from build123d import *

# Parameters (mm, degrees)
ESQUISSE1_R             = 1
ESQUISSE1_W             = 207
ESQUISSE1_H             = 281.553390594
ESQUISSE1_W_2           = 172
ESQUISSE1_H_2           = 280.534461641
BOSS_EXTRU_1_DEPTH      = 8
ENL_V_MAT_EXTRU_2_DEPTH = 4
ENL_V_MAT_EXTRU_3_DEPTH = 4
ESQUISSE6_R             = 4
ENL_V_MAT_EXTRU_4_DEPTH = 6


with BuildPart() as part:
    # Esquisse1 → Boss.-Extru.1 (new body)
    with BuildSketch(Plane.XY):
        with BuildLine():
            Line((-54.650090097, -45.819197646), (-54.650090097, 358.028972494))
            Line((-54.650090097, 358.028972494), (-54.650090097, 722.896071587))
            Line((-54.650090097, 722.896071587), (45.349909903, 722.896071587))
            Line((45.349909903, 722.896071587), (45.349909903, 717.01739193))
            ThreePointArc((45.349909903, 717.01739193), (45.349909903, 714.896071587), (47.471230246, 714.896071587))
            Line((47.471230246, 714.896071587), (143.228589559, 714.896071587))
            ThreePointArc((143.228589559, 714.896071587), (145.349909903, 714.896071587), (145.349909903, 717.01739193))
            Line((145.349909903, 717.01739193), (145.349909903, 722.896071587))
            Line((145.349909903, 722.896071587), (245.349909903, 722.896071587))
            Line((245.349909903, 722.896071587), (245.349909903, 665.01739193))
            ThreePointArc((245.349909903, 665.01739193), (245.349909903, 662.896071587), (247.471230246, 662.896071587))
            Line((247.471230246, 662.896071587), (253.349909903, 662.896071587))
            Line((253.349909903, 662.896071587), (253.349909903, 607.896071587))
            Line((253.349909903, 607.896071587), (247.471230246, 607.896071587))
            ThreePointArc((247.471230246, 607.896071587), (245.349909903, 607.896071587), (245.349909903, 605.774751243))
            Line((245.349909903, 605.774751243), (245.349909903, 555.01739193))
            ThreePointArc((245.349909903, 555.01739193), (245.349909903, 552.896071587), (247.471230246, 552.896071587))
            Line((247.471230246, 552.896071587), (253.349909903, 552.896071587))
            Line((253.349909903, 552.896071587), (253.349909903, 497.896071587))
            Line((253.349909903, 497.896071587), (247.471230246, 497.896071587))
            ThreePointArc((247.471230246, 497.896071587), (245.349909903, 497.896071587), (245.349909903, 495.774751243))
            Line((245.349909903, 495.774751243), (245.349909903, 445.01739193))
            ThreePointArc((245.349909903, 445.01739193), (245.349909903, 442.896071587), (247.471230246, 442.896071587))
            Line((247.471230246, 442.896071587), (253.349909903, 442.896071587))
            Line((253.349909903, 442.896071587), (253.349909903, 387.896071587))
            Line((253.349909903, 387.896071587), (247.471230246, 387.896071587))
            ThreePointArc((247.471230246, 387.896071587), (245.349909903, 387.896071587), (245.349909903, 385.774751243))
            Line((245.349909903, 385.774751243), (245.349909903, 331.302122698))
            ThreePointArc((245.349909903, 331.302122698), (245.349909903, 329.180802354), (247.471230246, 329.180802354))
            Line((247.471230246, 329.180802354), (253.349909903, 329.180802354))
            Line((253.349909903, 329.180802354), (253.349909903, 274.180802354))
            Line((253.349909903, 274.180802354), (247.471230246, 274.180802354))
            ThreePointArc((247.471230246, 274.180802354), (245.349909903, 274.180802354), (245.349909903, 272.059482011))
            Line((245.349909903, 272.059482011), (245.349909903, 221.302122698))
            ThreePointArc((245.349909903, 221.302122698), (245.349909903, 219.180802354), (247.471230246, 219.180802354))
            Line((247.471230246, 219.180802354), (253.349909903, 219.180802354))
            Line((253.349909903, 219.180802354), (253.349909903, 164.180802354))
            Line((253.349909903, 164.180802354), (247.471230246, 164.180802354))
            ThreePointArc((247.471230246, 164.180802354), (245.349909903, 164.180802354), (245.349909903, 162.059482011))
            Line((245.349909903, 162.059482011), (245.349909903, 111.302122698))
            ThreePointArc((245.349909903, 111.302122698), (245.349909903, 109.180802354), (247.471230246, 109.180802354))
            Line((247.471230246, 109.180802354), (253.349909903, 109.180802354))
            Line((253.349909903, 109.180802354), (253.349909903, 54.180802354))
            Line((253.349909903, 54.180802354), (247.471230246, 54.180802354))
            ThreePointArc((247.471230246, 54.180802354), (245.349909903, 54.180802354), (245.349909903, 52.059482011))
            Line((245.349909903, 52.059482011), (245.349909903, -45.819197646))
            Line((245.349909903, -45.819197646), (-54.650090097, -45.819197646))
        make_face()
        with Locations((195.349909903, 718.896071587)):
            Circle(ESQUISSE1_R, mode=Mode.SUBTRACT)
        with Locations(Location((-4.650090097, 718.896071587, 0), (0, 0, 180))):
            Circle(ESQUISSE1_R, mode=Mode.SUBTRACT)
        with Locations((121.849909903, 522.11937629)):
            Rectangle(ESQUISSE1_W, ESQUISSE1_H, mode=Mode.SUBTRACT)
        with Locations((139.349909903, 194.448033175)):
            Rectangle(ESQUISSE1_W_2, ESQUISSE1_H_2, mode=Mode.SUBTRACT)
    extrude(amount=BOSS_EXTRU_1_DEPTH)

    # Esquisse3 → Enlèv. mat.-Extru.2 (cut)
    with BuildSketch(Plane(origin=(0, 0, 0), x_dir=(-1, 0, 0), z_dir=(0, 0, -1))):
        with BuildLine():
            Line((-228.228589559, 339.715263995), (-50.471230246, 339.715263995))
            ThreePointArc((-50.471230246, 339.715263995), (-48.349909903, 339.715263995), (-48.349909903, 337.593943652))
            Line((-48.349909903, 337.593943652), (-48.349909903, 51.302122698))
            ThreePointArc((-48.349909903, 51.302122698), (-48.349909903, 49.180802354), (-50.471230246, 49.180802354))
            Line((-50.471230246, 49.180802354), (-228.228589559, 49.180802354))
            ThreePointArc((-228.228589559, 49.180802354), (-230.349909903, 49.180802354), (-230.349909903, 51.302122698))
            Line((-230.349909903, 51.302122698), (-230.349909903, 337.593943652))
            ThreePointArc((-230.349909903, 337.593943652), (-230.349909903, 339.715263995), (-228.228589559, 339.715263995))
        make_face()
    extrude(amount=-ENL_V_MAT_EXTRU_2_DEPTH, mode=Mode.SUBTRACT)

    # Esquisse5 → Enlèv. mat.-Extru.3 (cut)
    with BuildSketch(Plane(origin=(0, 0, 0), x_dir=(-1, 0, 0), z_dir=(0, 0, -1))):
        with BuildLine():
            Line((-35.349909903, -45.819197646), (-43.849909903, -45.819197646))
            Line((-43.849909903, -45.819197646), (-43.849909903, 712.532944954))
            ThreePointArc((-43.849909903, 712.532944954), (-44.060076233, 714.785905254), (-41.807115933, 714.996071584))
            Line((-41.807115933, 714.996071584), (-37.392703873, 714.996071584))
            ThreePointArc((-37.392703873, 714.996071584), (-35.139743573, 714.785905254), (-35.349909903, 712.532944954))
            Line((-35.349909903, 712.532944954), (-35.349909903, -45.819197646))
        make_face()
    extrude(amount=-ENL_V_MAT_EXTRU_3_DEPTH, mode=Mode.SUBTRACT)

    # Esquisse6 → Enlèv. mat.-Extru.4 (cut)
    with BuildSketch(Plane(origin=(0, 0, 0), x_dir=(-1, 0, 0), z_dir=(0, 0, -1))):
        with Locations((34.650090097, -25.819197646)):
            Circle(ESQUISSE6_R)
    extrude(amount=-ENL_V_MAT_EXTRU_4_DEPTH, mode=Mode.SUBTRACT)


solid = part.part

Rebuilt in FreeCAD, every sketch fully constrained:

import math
import FreeCAD as App
import Part
import Sketcher
Q = App.Units.Quantity


def add_polygon(sketch, points):
    """Adds a closed chain of lines whose ends are joined by coincident constraints."""
    first, n = sketch.GeometryCount, len(points)
    for a, b in zip(points, points[1:] + points[:1]):
        sketch.addGeometry(Part.LineSegment(App.Vector(*a, 0), App.Vector(*b, 0)), False)
    for i in range(n):
        sketch.addConstraint(Sketcher.Constraint("Coincident", first + i, 2, first + (i + 1) % n, 1))

doc = App.newDocument("Part")
body = doc.addObject("PartDesign::Body", "Body")

# Sketch on XY plane
sketch1 = body.newObject("Sketcher::SketchObject", "Sketch")
sketch1.AttachmentSupport = (doc.getObject("XY_Plane"), [""])
sketch1.MapMode = "FlatFace"
sketch1.addGeometry(Part.LineSegment(App.Vector(-54.7, 722.9, 0), App.Vector(-54.7, -45.8, 0)), False)  # 0
sketch1.addGeometry(Part.LineSegment(App.Vector(-54.7, -45.8, 0), App.Vector(245.3, -45.8, 0)), False)  # 1
sketch1.addGeometry(Part.LineSegment(App.Vector(245.3, -45.8, 0), App.Vector(245.3, 52.1, 0)), False)  # 2
sketch1.addGeometry(Part.ArcOfCircle(Part.Circle(App.Vector(246.4, 53.1, 0), App.Vector(0, 0, 1), 1.5), math.radians(45), math.radians(225)), False)  # 3
sketch1.addGeometry(Part.LineSegment(App.Vector(247.5, 54.2, 0), App.Vector(253.3, 54.2, 0)), False)  # 4
sketch1.addGeometry(Part.LineSegment(App.Vector(253.3, 54.2, 0), App.Vector(253.3, 109.2, 0)), False)  # 5
sketch1.addGeometry(Part.LineSegment(App.Vector(253.3, 109.2, 0), App.Vector(247.5, 109.2, 0)), False)  # 6
sketch1.addGeometry(Part.ArcOfCircle(Part.Circle(App.Vector(246.4, 110.2, 0), App.Vector(0, 0, 1), 1.5), math.radians(135), math.radians(315)), False)  # 7
sketch1.addGeometry(Part.LineSegment(App.Vector(245.3, 111.3, 0), App.Vector(245.3, 162.1, 0)), False)  # 8
sketch1.addGeometry(Part.ArcOfCircle(Part.Circle(App.Vector(246.4, 163.1, 0), App.Vector(0, 0, 1), 1.5), math.radians(45), math.radians(225)), False)  # 9
sketch1.addGeometry(Part.LineSegment(App.Vector(247.5, 164.2, 0), App.Vector(253.3, 164.2, 0)), False)  # 10
sketch1.addGeometry(Part.LineSegment(App.Vector(253.3, 164.2, 0), App.Vector(253.3, 219.2, 0)), False)  # 11
sketch1.addGeometry(Part.LineSegment(App.Vector(253.3, 219.2, 0), App.Vector(247.5, 219.2, 0)), False)  # 12
sketch1.addGeometry(Part.ArcOfCircle(Part.Circle(App.Vector(246.4, 220.2, 0), App.Vector(0, 0, 1), 1.5), math.radians(135), math.radians(315)), False)  # 13
sketch1.addGeometry(Part.LineSegment(App.Vector(245.3, 221.3, 0), App.Vector(245.3, 272.1, 0)), False)  # 14
sketch1.addGeometry(Part.ArcOfCircle(Part.Circle(App.Vector(246.4, 273.1, 0), App.Vector(0, 0, 1), 1.5), math.radians(45), math.radians(225)), False)  # 15
sketch1.addGeometry(Part.LineSegment(App.Vector(247.5, 274.2, 0), App.Vector(253.3, 274.2, 0)), False)  # 16
sketch1.addGeometry(Part.LineSegment(App.Vector(253.3, 274.2, 0), App.Vector(253.3, 329.2, 0)), False)  # 17
sketch1.addGeometry(Part.LineSegment(App.Vector(253.3, 329.2, 0), App.Vector(247.5, 329.2, 0)), False)  # 18
sketch1.addGeometry(Part.ArcOfCircle(Part.Circle(App.Vector(246.4, 330.2, 0), App.Vector(0, 0, 1), 1.5), math.radians(135), math.radians(315)), False)  # 19
sketch1.addGeometry(Part.LineSegment(App.Vector(245.3, 331.3, 0), App.Vector(245.3, 385.8, 0)), False)  # 20
sketch1.addGeometry(Part.ArcOfCircle(Part.Circle(App.Vector(246.4, 386.8, 0), App.Vector(0, 0, 1), 1.5), math.radians(45), math.radians(225)), False)  # 21
sketch1.addGeometry(Part.LineSegment(App.Vector(247.5, 387.9, 0), App.Vector(253.3, 387.9, 0)), False)  # 22
sketch1.addGeometry(Part.LineSegment(App.Vector(253.3, 387.9, 0), App.Vector(253.3, 442.9, 0)), False)  # 23
sketch1.addGeometry(Part.LineSegment(App.Vector(253.3, 442.9, 0), App.Vector(247.5, 442.9, 0)), False)  # 24
sketch1.addGeometry(Part.ArcOfCircle(Part.Circle(App.Vector(246.4, 444, 0), App.Vector(0, 0, 1), 1.5), math.radians(135), math.radians(315)), False)  # 25
sketch1.addGeometry(Part.LineSegment(App.Vector(245.3, 445, 0), App.Vector(245.3, 495.8, 0)), False)  # 26
sketch1.addGeometry(Part.ArcOfCircle(Part.Circle(App.Vector(246.4, 496.8, 0), App.Vector(0, 0, 1), 1.5), math.radians(45), math.radians(225)), False)  # 27
sketch1.addGeometry(Part.LineSegment(App.Vector(247.5, 497.9, 0), App.Vector(253.3, 497.9, 0)), False)  # 28
sketch1.addGeometry(Part.LineSegment(App.Vector(253.3, 497.9, 0), App.Vector(253.3, 552.9, 0)), False)  # 29
sketch1.addGeometry(Part.LineSegment(App.Vector(253.3, 552.9, 0), App.Vector(247.5, 552.9, 0)), False)  # 30
sketch1.addGeometry(Part.ArcOfCircle(Part.Circle(App.Vector(246.4, 554, 0), App.Vector(0, 0, 1), 1.5), math.radians(135), math.radians(315)), False)  # 31
sketch1.addGeometry(Part.LineSegment(App.Vector(245.3, 555, 0), App.Vector(245.3, 605.8, 0)), False)  # 32
sketch1.addGeometry(Part.ArcOfCircle(Part.Circle(App.Vector(246.4, 606.8, 0), App.Vector(0, 0, 1), 1.5), math.radians(45), math.radians(225)), False)  # 33
sketch1.addGeometry(Part.LineSegment(App.Vector(247.5, 607.9, 0), App.Vector(253.3, 607.9, 0)), False)  # 34
sketch1.addGeometry(Part.LineSegment(App.Vector(253.3, 607.9, 0), App.Vector(253.3, 662.9, 0)), False)  # 35
sketch1.addGeometry(Part.LineSegment(App.Vector(253.3, 662.9, 0), App.Vector(247.5, 662.9, 0)), False)  # 36
sketch1.addGeometry(Part.ArcOfCircle(Part.Circle(App.Vector(246.4, 664, 0), App.Vector(0, 0, 1), 1.5), math.radians(135), math.radians(315)), False)  # 37
sketch1.addGeometry(Part.LineSegment(App.Vector(245.3, 665, 0), App.Vector(245.3, 722.9, 0)), False)  # 38
sketch1.addGeometry(Part.LineSegment(App.Vector(245.3, 722.9, 0), App.Vector(145.3, 722.9, 0)), False)  # 39
sketch1.addGeometry(Part.LineSegment(App.Vector(145.3, 722.9, 0), App.Vector(145.3, 717, 0)), False)  # 40
sketch1.addGeometry(Part.ArcOfCircle(Part.Circle(App.Vector(144.3, 716, 0), App.Vector(0, 0, 1), 1.5), math.radians(-135), math.radians(45)), False)  # 41
sketch1.addGeometry(Part.LineSegment(App.Vector(143.2, 714.9, 0), App.Vector(47.5, 714.9, 0)), False)  # 42
sketch1.addGeometry(Part.ArcOfCircle(Part.Circle(App.Vector(46.4, 716, 0), App.Vector(0, 0, 1), 1.5), math.radians(135), math.radians(315)), False)  # 43
sketch1.addGeometry(Part.LineSegment(App.Vector(45.3, 717, 0), App.Vector(45.3, 722.9, 0)), False)  # 44
sketch1.addGeometry(Part.LineSegment(App.Vector(45.3, 722.9, 0), App.Vector(-54.7, 722.9, 0)), False)  # 45
add_polygon(sketch1, [(53.3, 54.2), (53.3, 334.7), (225.3, 334.7), (225.3, 54.2)])  # lines 46-49
add_polygon(sketch1, [(18.3, 381.3), (18.3, 662.9), (225.3, 662.9), (225.3, 381.3)])  # lines 50-53
sketch1.addGeometry(Part.Circle(App.Vector(195.3, 718.9, 0), App.Vector(0, 0, 1), 1), False)  # 54
sketch1.addGeometry(Part.Circle(App.Vector(-4.7, 718.9, 0), App.Vector(0, 0, 1), 1), False)  # 55
sketch1.addConstraint([
    Sketcher.Constraint("Coincident", 0, 2, 1, 1),
    Sketcher.Constraint("Coincident", 1, 2, 2, 1),
    Sketcher.Constraint("Coincident", 2, 2, 3, 2),
    Sketcher.Constraint("Coincident", 3, 1, 4, 1),
    Sketcher.Constraint("Coincident", 4, 2, 5, 1),
    Sketcher.Constraint("Coincident", 5, 2, 6, 1),
    Sketcher.Constraint("Coincident", 6, 2, 7, 2),
    Sketcher.Constraint("Coincident", 7, 1, 8, 1),
    Sketcher.Constraint("Coincident", 8, 2, 9, 2),
    Sketcher.Constraint("Coincident", 9, 1, 10, 1),
    Sketcher.Constraint("Coincident", 10, 2, 11, 1),
    Sketcher.Constraint("Coincident", 11, 2, 12, 1),
    Sketcher.Constraint("Coincident", 12, 2, 13, 2),
    Sketcher.Constraint("Coincident", 13, 1, 14, 1),
    Sketcher.Constraint("Coincident", 14, 2, 15, 2),
    Sketcher.Constraint("Coincident", 15, 1, 16, 1),
    Sketcher.Constraint("Coincident", 16, 2, 17, 1),
    Sketcher.Constraint("Coincident", 17, 2, 18, 1),
    Sketcher.Constraint("Coincident", 18, 2, 19, 2),
    Sketcher.Constraint("Coincident", 19, 1, 20, 1),
    Sketcher.Constraint("Coincident", 20, 2, 21, 2),
    Sketcher.Constraint("Coincident", 21, 1, 22, 1),
    Sketcher.Constraint("Coincident", 22, 2, 23, 1),
    Sketcher.Constraint("Coincident", 23, 2, 24, 1),
    Sketcher.Constraint("Coincident", 24, 2, 25, 2),
    Sketcher.Constraint("Coincident", 25, 1, 26, 1),
    Sketcher.Constraint("Coincident", 26, 2, 27, 2),
    Sketcher.Constraint("Coincident", 27, 1, 28, 1),
    Sketcher.Constraint("Coincident", 28, 2, 29, 1),
    Sketcher.Constraint("Coincident", 29, 2, 30, 1),
    Sketcher.Constraint("Coincident", 30, 2, 31, 2),
    Sketcher.Constraint("Coincident", 31, 1, 32, 1),
    Sketcher.Constraint("Coincident", 32, 2, 33, 2),
    Sketcher.Constraint("Coincident", 33, 1, 34, 1),
    Sketcher.Constraint("Coincident", 34, 2, 35, 1),
    Sketcher.Constraint("Coincident", 35, 2, 36, 1),
    Sketcher.Constraint("Coincident", 36, 2, 37, 2),
    Sketcher.Constraint("Coincident", 37, 1, 38, 1),
    Sketcher.Constraint("Coincident", 38, 2, 39, 1),
    Sketcher.Constraint("Coincident", 39, 2, 40, 1),
    Sketcher.Constraint("Coincident", 40, 2, 41, 2),
    Sketcher.Constraint("Coincident", 41, 1, 42, 1),
    Sketcher.Constraint("Coincident", 42, 2, 43, 2),
    Sketcher.Constraint("Coincident", 43, 1, 44, 1),
    Sketcher.Constraint("Coincident", 44, 2, 45, 1),
    Sketcher.Constraint("Coincident", 45, 2, 0, 1),
    Sketcher.Constraint("Vertical", 0),
    Sketcher.Constraint("Horizontal", 1),
    Sketcher.Constraint("Vertical", 2),
    Sketcher.Constraint("Horizontal", 4),
    Sketcher.Constraint("Vertical", 5),
    Sketcher.Constraint("Horizontal", 6),
    Sketcher.Constraint("Vertical", 8),
    Sketcher.Constraint("Horizontal", 10),
    Sketcher.Constraint("Vertical", 11),
    Sketcher.Constraint("Horizontal", 12),
    Sketcher.Constraint("Vertical", 14),
    Sketcher.Constraint("Horizontal", 16),
    Sketcher.Constraint("Vertical", 17),
    Sketcher.Constraint("Horizontal", 18),
    Sketcher.Constraint("Vertical", 20),
    Sketcher.Constraint("Horizontal", 22),
    Sketcher.Constraint("Vertical", 23),
    Sketcher.Constraint("Horizontal", 24),
    Sketcher.Constraint("Vertical", 26),
    Sketcher.Constraint("Horizontal", 28),
    Sketcher.Constraint("Vertical", 29),
    Sketcher.Constraint("Horizontal", 30),
    Sketcher.Constraint("Vertical", 32),
    Sketcher.Constraint("Horizontal", 34),
    Sketcher.Constraint("Vertical", 35),
    Sketcher.Constraint("Horizontal", 36),
    Sketcher.Constraint("Vertical", 38),
    Sketcher.Constraint("Horizontal", 39),
    Sketcher.Constraint("Vertical", 40),
    Sketcher.Constraint("Horizontal", 42),
    Sketcher.Constraint("Vertical", 44),
    Sketcher.Constraint("Horizontal", 45),
    Sketcher.Constraint("Vertical", 46),
    Sketcher.Constraint("Horizontal", 47),
    Sketcher.Constraint("Vertical", 48),
    Sketcher.Constraint("Horizontal", 49),
    Sketcher.Constraint("Vertical", 50),
    Sketcher.Constraint("Horizontal", 51),
    Sketcher.Constraint("Vertical", 52),
    Sketcher.Constraint("Horizontal", 53),
    Sketcher.Constraint("Equal", 3, 7),
    Sketcher.Constraint("Equal", 7, 9),
    Sketcher.Constraint("Equal", 9, 13),
    Sketcher.Constraint("Equal", 13, 15),
    Sketcher.Constraint("Equal", 15, 19),
    Sketcher.Constraint("Equal", 19, 21),
    Sketcher.Constraint("Equal", 21, 25),
    Sketcher.Constraint("Equal", 25, 27),
    Sketcher.Constraint("Equal", 27, 31),
    Sketcher.Constraint("Equal", 31, 33),
    Sketcher.Constraint("Equal", 33, 37),
    Sketcher.Constraint("Equal", 37, 41),
    Sketcher.Constraint("Equal", 41, 43),
    Sketcher.Constraint("Equal", 54, 55),
    Sketcher.Constraint("Horizontal", 41, 3, 43, 3),
    Sketcher.Constraint("Horizontal", 54, 3, 55, 3),
    Sketcher.Constraint("Horizontal", 40, 2, 43, 1),
    Sketcher.Constraint("Horizontal", 39, 2, 44, 2),
    Sketcher.Constraint("Horizontal", 4, 2, 48, 2),
    Sketcher.Constraint("Horizontal", 36, 2, 50, 2),
    Sketcher.Constraint("Vertical", 3, 3, 7, 3),
    Sketcher.Constraint("Vertical", 7, 3, 9, 3),
    Sketcher.Constraint("Vertical", 9, 3, 13, 3),
    Sketcher.Constraint("Vertical", 13, 3, 15, 3),
    Sketcher.Constraint("Vertical", 15, 3, 19, 3),
    Sketcher.Constraint("Vertical", 19, 3, 21, 3),
    Sketcher.Constraint("Vertical", 21, 3, 25, 3),
    Sketcher.Constraint("Vertical", 25, 3, 27, 3),
    Sketcher.Constraint("Vertical", 27, 3, 31, 3),
    Sketcher.Constraint("Vertical", 31, 3, 33, 3),
    Sketcher.Constraint("Vertical", 33, 3, 37, 3),
    Sketcher.Constraint("Vertical", 3, 1, 6, 2),
    Sketcher.Constraint("Vertical", 2, 2, 7, 1),
    Sketcher.Constraint("Vertical", 6, 2, 9, 1),
    Sketcher.Constraint("Vertical", 5, 2, 10, 2),
    Sketcher.Constraint("Vertical", 9, 1, 12, 2),
    Sketcher.Constraint("Vertical", 8, 2, 13, 1),
    Sketcher.Constraint("Vertical", 12, 2, 15, 1),
    Sketcher.Constraint("Vertical", 11, 2, 16, 2),
    Sketcher.Constraint("Vertical", 15, 1, 18, 2),
    Sketcher.Constraint("Vertical", 14, 2, 19, 1),
    Sketcher.Constraint("Vertical", 18, 2, 21, 1),
    Sketcher.Constraint("Vertical", 17, 2, 22, 2),
    Sketcher.Constraint("Vertical", 21, 1, 24, 2),
    Sketcher.Constraint("Vertical", 20, 2, 25, 1),
    Sketcher.Constraint("Vertical", 24, 2, 27, 1),
    Sketcher.Constraint("Vertical", 23, 2, 28, 2),
    Sketcher.Constraint("Vertical", 27, 1, 30, 2),
    Sketcher.Constraint("Vertical", 26, 2, 31, 1),
    Sketcher.Constraint("Vertical", 30, 2, 33, 1),
    Sketcher.Constraint("Vertical", 29, 2, 34, 2),
    Sketcher.Constraint("Vertical", 33, 1, 36, 2),
    Sketcher.Constraint("Vertical", 32, 2, 37, 1),
    Sketcher.Constraint("Vertical", 48, 2, 51, 2),
    Sketcher.Constraint("Equal", 39, 45),
    Sketcher.Constraint("Equal", 5, 11),
    Sketcher.Constraint("Equal", 8, 14),
    Sketcher.Constraint("Equal", 11, 17),
    Sketcher.Constraint("Equal", 17, 23),
    Sketcher.Constraint("Equal", 14, 26),
    Sketcher.Constraint("Equal", 23, 29),
    Sketcher.Constraint("Equal", 26, 32),
    Sketcher.Constraint("Equal", 29, 35),
    Sketcher.Constraint("Equal", 36, 40),
    Sketcher.Constraint("Diameter", 54, Q("2 mm")),
    Sketcher.Constraint("Radius", 3, Q("1.5 mm")),
    Sketcher.Constraint("DistanceX", 1, 1, 1, 2, Q("300 mm")),
    Sketcher.Constraint("DistanceX", 39, 2, 39, 1, Q("100 mm")),
    Sketcher.Constraint("DistanceX", 47, 1, 47, 2, Q("172 mm")),
    Sketcher.Constraint("DistanceX", 51, 1, 51, 2, Q("207 mm")),
    Sketcher.Constraint("DistanceY", 5, 1, 5, 2, Q("55 mm")),
    Sketcher.Constraint("DistanceX", 4, 1, 4, 2, Q("5.87868 mm")),
    Sketcher.Constraint("DistanceX", 42, 2, 42, 1, Q("95.757359 mm")),
    Sketcher.Constraint("DistanceY", 0, 2, 0, 1, Q("768.715269 mm")),
    Sketcher.Constraint("DistanceY", 2, 1, 2, 2, Q("97.87868 mm")),
    Sketcher.Constraint("DistanceY", 8, 1, 8, 2, Q("50.757359 mm")),
    Sketcher.Constraint("DistanceY", 20, 1, 20, 2, Q("54.472629 mm")),
    Sketcher.Constraint("DistanceY", 38, 1, 38, 2, Q("57.87868 mm")),
    Sketcher.Constraint("DistanceY", 46, 1, 46, 2, Q("280.534462 mm")),
    Sketcher.Constraint("DistanceY", 50, 1, 50, 2, Q("281.553391 mm")),
    Sketcher.Constraint("DistanceX", -1, 1, 3, 3, Q("246.41057 mm")),
    Sketcher.Constraint("DistanceY", -1, 1, 21, 3, Q("386.835411 mm")),
    Sketcher.Constraint("DistanceY", -1, 1, 25, 3, Q("443.956732 mm")),
    Sketcher.Constraint("DistanceX", -1, 1, 41, 3, Q("144.28925 mm")),
    Sketcher.Constraint("DistanceX", -1, 1, 54, 3, Q("195.34991 mm")),
    Sketcher.Constraint("DistanceY", -1, 1, 54, 3, Q("718.896072 mm")),
    Sketcher.Constraint("DistanceX", 55, 3, -1, 1, Q("4.65009 mm")),
    Sketcher.Constraint("DistanceX", -1, 1, 46, 2, Q("53.34991 mm")),
])
pad1 = body.newObject("PartDesign::Pad", "Pad")
pad1.Profile = sketch1
pad1.Length = 8

# Sketch on XY plane
sketch2 = body.newObject("Sketcher::SketchObject", "Sketch001")
sketch2.AttachmentSupport = (doc.getObject("XY_Plane"), [""])
sketch2.MapMode = "FlatFace"
sketch2.addGeometry([
    Part.LineSegment(App.Vector(50.5, 339.7, 0), App.Vector(228.2, 339.7, 0)),  # 0
    Part.ArcOfCircle(Part.Circle(App.Vector(229.3, 338.7, 0), App.Vector(0, 0, 1), 1.5), math.radians(-45), math.radians(135)),  # 1
    Part.LineSegment(App.Vector(230.3, 337.6, 0), App.Vector(230.3, 51.3, 0)),  # 2
    Part.ArcOfCircle(Part.Circle(App.Vector(229.3, 50.2, 0), App.Vector(0, 0, 1), 1.5), math.radians(-135), math.radians(45)),  # 3
    Part.LineSegment(App.Vector(228.2, 49.2, 0), App.Vector(50.5, 49.2, 0)),  # 4
    Part.ArcOfCircle(Part.Circle(App.Vector(49.4, 50.2, 0), App.Vector(0, 0, 1), 1.5), math.radians(135), math.radians(315)),  # 5
    Part.LineSegment(App.Vector(48.3, 51.3, 0), App.Vector(48.3, 337.6, 0)),  # 6
    Part.ArcOfCircle(Part.Circle(App.Vector(49.4, 338.7, 0), App.Vector(0, 0, 1), 1.5), math.radians(45), math.radians(225)),  # 7
], False)
sketch2.addConstraint([
    Sketcher.Constraint("Coincident", 0, 2, 1, 2),
    Sketcher.Constraint("Coincident", 1, 1, 2, 1),
    Sketcher.Constraint("Coincident", 2, 2, 3, 2),
    Sketcher.Constraint("Coincident", 3, 1, 4, 1),
    Sketcher.Constraint("Coincident", 4, 2, 5, 2),
    Sketcher.Constraint("Coincident", 5, 1, 6, 1),
    Sketcher.Constraint("Coincident", 6, 2, 7, 2),
    Sketcher.Constraint("Coincident", 7, 1, 0, 1),
    Sketcher.Constraint("Horizontal", 0),
    Sketcher.Constraint("Vertical", 2),
    Sketcher.Constraint("Horizontal", 4),
    Sketcher.Constraint("Vertical", 6),
    Sketcher.Constraint("Equal", 1, 3),
    Sketcher.Constraint("Equal", 3, 5),
    Sketcher.Constraint("Equal", 5, 7),
    Sketcher.Constraint("Horizontal", 3, 3, 5, 3),
    Sketcher.Constraint("Horizontal", 1, 3, 7, 3),
    Sketcher.Constraint("Horizontal", 2, 2, 5, 1),
    Sketcher.Constraint("Horizontal", 1, 1, 6, 2),
    Sketcher.Constraint("Vertical", 1, 3, 3, 3),
    Sketcher.Constraint("Vertical", 0, 2, 3, 1),
    Sketcher.Constraint("Radius", 1, Q("1.5 mm")),
    Sketcher.Constraint("DistanceX", 5, 1, 2, 2, Q("182 mm")),
    Sketcher.Constraint("DistanceX", 0, 1, 0, 2, Q("177.757359 mm")),
    Sketcher.Constraint("DistanceY", 2, 2, 2, 1, Q("286.291821 mm")),
    Sketcher.Constraint("DistanceY", 3, 3, 0, 2, Q("289.473801 mm")),
    Sketcher.Constraint("DistanceX", -1, 1, 1, 3, Q("229.28925 mm")),
    Sketcher.Constraint("DistanceY", -1, 1, 1, 3, Q("338.654604 mm")),
])
pocket1 = body.newObject("PartDesign::Pocket", "Pocket")
pocket1.Profile = sketch2
pocket1.Length = 4
pocket1.Reversed = True

# Sketch on XY plane
sketch3 = body.newObject("Sketcher::SketchObject", "Sketch002")
sketch3.AttachmentSupport = (doc.getObject("XY_Plane"), [""])
sketch3.MapMode = "FlatFace"
sketch3.addGeometry([
    Part.LineSegment(App.Vector(43.8, -45.8, 0), App.Vector(35.3, -45.8, 0)),  # 0
    Part.LineSegment(App.Vector(35.3, -45.8, 0), App.Vector(35.3, 712.5, 0)),  # 1
    Part.ArcOfCircle(Part.Circle(App.Vector(36.4, 713.8, 0), App.Vector(0, 0, 1), 1.6), math.radians(50), math.radians(230)),  # 2
    Part.LineSegment(App.Vector(37.4, 715, 0), App.Vector(41.8, 715, 0)),  # 3
    Part.ArcOfCircle(Part.Circle(App.Vector(42.8, 713.8, 0), App.Vector(0, 0, 1), 1.6), math.radians(-50), math.radians(130)),  # 4
    Part.LineSegment(App.Vector(43.8, 712.5, 0), App.Vector(43.8, -45.8, 0)),  # 5
], False)
sketch3.addConstraint([
    Sketcher.Constraint("Coincident", 0, 2, 1, 1),
    Sketcher.Constraint("Coincident", 1, 2, 2, 2),
    Sketcher.Constraint("Coincident", 2, 1, 3, 1),
    Sketcher.Constraint("Coincident", 3, 2, 4, 2),
    Sketcher.Constraint("Coincident", 4, 1, 5, 1),
    Sketcher.Constraint("Coincident", 5, 2, 0, 1),
    Sketcher.Constraint("Horizontal", 0),
    Sketcher.Constraint("Vertical", 1),
    Sketcher.Constraint("Horizontal", 3),
    Sketcher.Constraint("Vertical", 5),
    Sketcher.Constraint("Equal", 2, 4),
    Sketcher.Constraint("Horizontal", 2, 3, 4, 3),
    Sketcher.Constraint("Horizontal", 1, 2, 4, 1),
    Sketcher.Constraint("Radius", 2, Q("1.6 mm")),
    Sketcher.Constraint("DistanceX", 0, 2, 0, 1, Q("8.5 mm")),
    Sketcher.Constraint("DistanceX", 3, 1, 3, 2, Q("4.414412 mm")),
    Sketcher.Constraint("DistanceY", 1, 1, 1, 2, Q("758.352143 mm")),
    Sketcher.Constraint("DistanceY", -1, 1, 2, 3, Q("713.764508 mm")),
    Sketcher.Constraint("DistanceX", -1, 1, 0, 2, Q("35.34991 mm")),
    Sketcher.Constraint("DistanceY", -1, 1, 2, 1, Q("714.996072 mm")),
])
pocket2 = body.newObject("PartDesign::Pocket", "Pocket001")
pocket2.Profile = sketch3
pocket2.Length = 4
pocket2.Reversed = True

# Sketch on XY plane
sketch4 = body.newObject("Sketcher::SketchObject", "Sketch003")
sketch4.AttachmentSupport = (doc.getObject("XY_Plane"), [""])
sketch4.MapMode = "FlatFace"
sketch4.addGeometry(Part.Circle(App.Vector(-34.7, -25.8, 0), App.Vector(0, 0, 1), 4), False)
sketch4.addConstraint([
    Sketcher.Constraint("Diameter", 0, Q("8 mm")),
    Sketcher.Constraint("DistanceX", 0, 3, -1, 1, Q("34.65009 mm")),
    Sketcher.Constraint("DistanceY", 0, 3, -1, 1, Q("25.819198 mm")),
])
pocket3 = body.newObject("PartDesign::Pocket", "Pocket002")
pocket3.Profile = sketch4
pocket3.Length = 6
pocket3.Reversed = True

doc.recompute()
